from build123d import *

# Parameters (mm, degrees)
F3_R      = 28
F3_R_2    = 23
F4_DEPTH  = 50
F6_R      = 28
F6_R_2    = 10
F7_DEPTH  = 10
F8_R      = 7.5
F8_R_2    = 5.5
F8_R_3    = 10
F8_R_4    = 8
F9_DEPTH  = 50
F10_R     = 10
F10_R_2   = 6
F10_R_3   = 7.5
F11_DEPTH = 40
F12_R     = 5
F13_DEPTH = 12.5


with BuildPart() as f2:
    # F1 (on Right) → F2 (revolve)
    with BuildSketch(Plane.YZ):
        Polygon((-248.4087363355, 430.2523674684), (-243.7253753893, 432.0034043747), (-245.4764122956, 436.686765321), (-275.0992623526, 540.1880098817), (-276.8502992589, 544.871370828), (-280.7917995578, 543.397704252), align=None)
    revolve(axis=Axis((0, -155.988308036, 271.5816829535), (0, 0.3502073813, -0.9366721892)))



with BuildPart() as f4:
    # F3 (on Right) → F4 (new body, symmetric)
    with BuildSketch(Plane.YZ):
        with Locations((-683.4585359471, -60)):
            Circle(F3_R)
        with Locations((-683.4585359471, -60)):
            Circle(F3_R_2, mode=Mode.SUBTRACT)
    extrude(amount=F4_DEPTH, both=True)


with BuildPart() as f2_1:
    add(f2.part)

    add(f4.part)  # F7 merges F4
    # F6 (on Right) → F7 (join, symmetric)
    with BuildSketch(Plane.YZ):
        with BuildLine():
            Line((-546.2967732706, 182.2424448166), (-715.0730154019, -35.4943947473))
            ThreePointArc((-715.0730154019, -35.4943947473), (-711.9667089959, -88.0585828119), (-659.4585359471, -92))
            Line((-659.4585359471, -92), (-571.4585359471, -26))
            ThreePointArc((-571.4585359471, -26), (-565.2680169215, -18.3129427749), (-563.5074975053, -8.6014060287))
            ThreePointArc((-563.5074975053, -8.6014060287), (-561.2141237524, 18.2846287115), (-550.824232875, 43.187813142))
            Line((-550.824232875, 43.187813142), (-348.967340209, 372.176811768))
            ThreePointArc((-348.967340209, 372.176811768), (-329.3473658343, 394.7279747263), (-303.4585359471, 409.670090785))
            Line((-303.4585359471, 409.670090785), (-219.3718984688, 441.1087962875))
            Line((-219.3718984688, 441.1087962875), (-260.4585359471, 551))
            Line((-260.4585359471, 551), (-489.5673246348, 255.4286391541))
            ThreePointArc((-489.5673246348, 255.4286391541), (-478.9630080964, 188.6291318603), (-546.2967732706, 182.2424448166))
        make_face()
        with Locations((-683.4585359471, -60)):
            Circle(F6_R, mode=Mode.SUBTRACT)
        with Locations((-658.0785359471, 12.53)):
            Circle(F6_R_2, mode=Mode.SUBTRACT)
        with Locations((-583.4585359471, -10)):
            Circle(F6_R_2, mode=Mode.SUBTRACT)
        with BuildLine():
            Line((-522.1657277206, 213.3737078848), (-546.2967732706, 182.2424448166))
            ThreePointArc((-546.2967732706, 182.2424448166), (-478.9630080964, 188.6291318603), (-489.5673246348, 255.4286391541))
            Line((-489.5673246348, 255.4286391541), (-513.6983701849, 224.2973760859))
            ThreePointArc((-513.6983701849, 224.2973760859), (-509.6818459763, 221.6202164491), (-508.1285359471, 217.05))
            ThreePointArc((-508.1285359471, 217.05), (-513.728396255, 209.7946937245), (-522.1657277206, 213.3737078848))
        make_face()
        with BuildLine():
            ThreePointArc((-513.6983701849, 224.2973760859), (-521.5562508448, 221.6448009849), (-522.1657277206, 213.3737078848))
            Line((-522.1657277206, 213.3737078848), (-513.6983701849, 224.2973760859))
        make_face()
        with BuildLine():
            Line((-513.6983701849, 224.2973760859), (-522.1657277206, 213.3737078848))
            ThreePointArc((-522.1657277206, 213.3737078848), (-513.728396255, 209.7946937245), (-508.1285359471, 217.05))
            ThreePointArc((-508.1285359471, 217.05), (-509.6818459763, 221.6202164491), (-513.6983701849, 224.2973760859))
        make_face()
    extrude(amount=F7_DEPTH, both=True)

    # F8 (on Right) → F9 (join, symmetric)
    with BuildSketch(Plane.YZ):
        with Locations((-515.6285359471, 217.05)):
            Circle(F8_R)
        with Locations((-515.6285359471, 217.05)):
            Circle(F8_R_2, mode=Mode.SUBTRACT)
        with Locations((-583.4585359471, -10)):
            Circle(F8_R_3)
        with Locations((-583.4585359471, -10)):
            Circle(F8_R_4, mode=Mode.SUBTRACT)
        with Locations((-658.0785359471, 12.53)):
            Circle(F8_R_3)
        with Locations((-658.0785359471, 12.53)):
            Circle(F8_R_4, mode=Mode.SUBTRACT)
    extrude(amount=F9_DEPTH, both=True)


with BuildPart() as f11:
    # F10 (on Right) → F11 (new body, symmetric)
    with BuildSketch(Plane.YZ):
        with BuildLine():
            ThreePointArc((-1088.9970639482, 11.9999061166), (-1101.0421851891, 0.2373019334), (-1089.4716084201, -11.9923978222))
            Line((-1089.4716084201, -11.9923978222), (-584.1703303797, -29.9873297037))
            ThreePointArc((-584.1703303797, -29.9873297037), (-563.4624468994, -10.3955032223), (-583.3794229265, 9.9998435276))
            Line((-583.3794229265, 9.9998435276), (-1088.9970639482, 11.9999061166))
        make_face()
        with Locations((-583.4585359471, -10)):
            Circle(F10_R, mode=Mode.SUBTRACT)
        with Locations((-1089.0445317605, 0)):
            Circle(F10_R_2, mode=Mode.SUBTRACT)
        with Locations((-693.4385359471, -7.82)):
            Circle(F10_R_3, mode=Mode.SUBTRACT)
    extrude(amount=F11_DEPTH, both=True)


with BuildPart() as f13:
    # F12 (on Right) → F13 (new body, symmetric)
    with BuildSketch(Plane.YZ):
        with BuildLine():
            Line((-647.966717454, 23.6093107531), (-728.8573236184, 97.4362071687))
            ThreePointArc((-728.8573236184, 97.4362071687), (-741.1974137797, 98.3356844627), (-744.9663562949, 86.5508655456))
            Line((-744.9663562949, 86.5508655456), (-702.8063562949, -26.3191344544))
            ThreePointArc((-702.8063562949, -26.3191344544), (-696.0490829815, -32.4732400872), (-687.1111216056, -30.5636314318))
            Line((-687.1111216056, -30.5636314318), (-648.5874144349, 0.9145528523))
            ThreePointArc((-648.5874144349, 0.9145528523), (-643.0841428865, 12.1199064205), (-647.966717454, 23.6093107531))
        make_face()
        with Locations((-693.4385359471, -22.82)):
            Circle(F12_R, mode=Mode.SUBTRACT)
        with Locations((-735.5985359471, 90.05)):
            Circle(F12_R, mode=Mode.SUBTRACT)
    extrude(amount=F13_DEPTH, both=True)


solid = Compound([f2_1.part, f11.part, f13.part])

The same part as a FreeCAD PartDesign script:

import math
import FreeCAD as App
import Part
import Sketcher
Q = App.Units.Quantity


def add_polygon(sketch, points):
    """Adds a closed chain of lines whose ends are joined by coincident constraints."""
    first, n = sketch.GeometryCount, len(points)
    for a, b in zip(points, points[1:] + points[:1]):
        sketch.addGeometry(Part.LineSegment(App.Vector(*a, 0), App.Vector(*b, 0)), False)
    for i in range(n):
        sketch.addConstraint(Sketcher.Constraint("Coincident", first + i, 2, first + (i + 1) % n, 1))

doc = App.newDocument("Part")
body = doc.addObject("PartDesign::Body", "Body")

# Sketch on YZ plane
sketch1 = body.newObject("Sketcher::SketchObject", "Sketch")
sketch1.AttachmentSupport = (doc.getObject("YZ_Plane"), [""])
sketch1.MapMode = "FlatFace"
add_polygon(sketch1, [(-248.4, 430.3), (-243.7, 432), (-245.5, 436.7), (-275.1, 540.2), (-276.9, 544.9), (-280.8, 543.4)])  # lines 0-5
sketch1.addGeometry(Part.LineSegment(App.Vector(-260.5, 551, 0), App.Vector(-219.4, 441.1, 0)), True)  # axis
sketch1.addConstraint([
    Sketcher.Constraint("Perpendicular", 0, 1),
    Sketcher.Constraint("Parallel", 1, 3),
    Sketcher.Constraint("Perpendicular", 3, 4),
    Sketcher.Constraint("Parallel", 2, 5),
    Sketcher.Constraint("Perpendicular", 4, 6),
    Sketcher.Constraint("Equal", 0, 1),
    Sketcher.Constraint("Equal", 1, 3),
    Sketcher.Constraint("Distance", 0, Q("5 mm")),
    Sketcher.Constraint("DistanceY", -1, 1, 6, 1, Q("551 mm")),
    Sketcher.Constraint("Angle", 0, Q("20.5 deg")),
    Sketcher.Constraint("DistanceX", 3, 2, -1, 1, Q("276.850299 mm")),
    Sketcher.Constraint("DistanceX", 4, 2, -1, 1, Q("280.7918 mm")),
    Sketcher.Constraint("DistanceX", 6, 2, -1, 1, Q("219.371898 mm")),
    Sketcher.Constraint("DistanceY", 0, 2, 4, 2, Q("111.3943 mm")),
    Sketcher.Constraint("Distance", 6, Q("117.320878 mm")),
    Sketcher.Constraint("DistanceY", -1, 1, 2, 2, Q("540.18801 mm")),
])
revolution = body.newObject("PartDesign::Revolution", "Revolution")
revolution.Profile = sketch1
revolution.ReferenceAxis = (sketch1, ["Axis0"])
revolution.Angle = 360
body2 = doc.addObject("PartDesign::Body", "Body001")

# Sketch on YZ plane
sketch2 = body2.newObject("Sketcher::SketchObject", "Sketch001")
sketch2.AttachmentSupport = (doc.getObject("YZ_Plane001"), [""])
sketch2.MapMode = "FlatFace"
sketch2.addGeometry([
    Part.Circle(App.Vector(-683, -60, 0), App.Vector(0, 0, 1), 28),
    Part.Circle(App.Vector(-683, -60, 0), App.Vector(0, 0, 1), 23),
], False)
sketch2.addConstraint([
    Sketcher.Constraint("Coincident", 1, 3, 0, 3),
    Sketcher.Constraint("Diameter", 0, Q("56 mm")),
    Sketcher.Constraint("Diameter", 1, Q("46 mm")),
    Sketcher.Constraint("DistanceY", 0, 3, -1, 1, Q("60 mm")),
    Sketcher.Constraint("DistanceX", 0, 3, -1, 1, Q("683.458536 mm")),
])
pad1 = body2.newObject("PartDesign::Pad", "Pad")
pad1.Profile = sketch2
pad1.Length = 100
pad1.Midplane = True
body.AllowCompound = True
doc.recompute()

boolean = body.newObject("PartDesign::Boolean", "Boolean")
boolean.Type = "Fuse"
boolean.addObjects([body2])

# Sketch on YZ plane
sketch3 = body.newObject("Sketcher::SketchObject", "Sketch002")
sketch3.AttachmentSupport = (doc.getObject("YZ_Plane"), [""])
sketch3.MapMode = "FlatFace"
sketch3.addGeometry([
    Part.LineSegment(App.Vector(-546.296773, 182.242445, 0), App.Vector(-715.073015, -35.494395, 0)),  # 0
    Part.ArcOfCircle(Part.Circle(App.Vector(-683.458536, -60, 0), App.Vector(0, 0, 1), 40), math.radians(142.219353), math.radians(306.869898)),  # 1
    Part.LineSegment(App.Vector(-659.458536, -92, 0), App.Vector(-571.458536, -26, 0)),  # 2
    Part.ArcOfCircle(Part.Circle(App.Vector(-583.458536, -10, 0), App.Vector(0, 0, 1), 20), math.radians(-53.130102), math.radians(4.009949)),  # 3
    Part.ArcOfCircle(Part.Circle(App.Vector(-476.372803, -2.49315, 0), App.Vector(0, 0, 1), 87.34853), math.radians(148.468083), math.radians(184.009949)),  # 4
    Part.LineSegment(App.Vector(-550.824233, 43.187813, 0), App.Vector(-348.96734, 372.176812, 0)),  # 5
    Part.ArcOfCircle(Part.Circle(App.Vector(-271.719442, 324.780027, 0), App.Vector(0, 0, 1), 90.629427), math.radians(110.5), math.radians(148.468083)),  # 6
    Part.LineSegment(App.Vector(-303.458536, 409.670091, 0), App.Vector(-219.371898, 441.108796, 0)),  # 7
    Part.LineSegment(App.Vector(-219.371898, 441.108796, 0), App.Vector(-260.458536, 551, 0)),  # 8
    Part.LineSegment(App.Vector(-260.458536, 551, 0), App.Vector(-513.69837, 224.297376, 0)),  # 9
    Part.ArcOfCircle(Part.Circle(App.Vector(-515.628536, 217.05, 0), App.Vector(0, 0, 1), 7.5), math.radians(75.086799), math.radians(209.351906)),  # 10
    Part.LineSegment(App.Vector(-522.165728, 213.373708, 0), App.Vector(-546.296773, 182.242445, 0)),  # 11
    Part.Circle(App.Vector(-683.458536, -60, 0), App.Vector(0, 0, 1), 28),  # 12
    Part.Circle(App.Vector(-658.078536, 12.53, 0), App.Vector(0, 0, 1), 10),  # 13
    Part.Circle(App.Vector(-583.458536, -10, 0), App.Vector(0, 0, 1), 10),  # 14
], False)
sketch3.addConstraint([
    Sketcher.Constraint("Coincident", 0, 2, 1, 1),
    Sketcher.Constraint("Coincident", 1, 2, 2, 1),
    Sketcher.Constraint("Coincident", 2, 2, 3, 1),
    Sketcher.Constraint("Coincident", 3, 2, 4, 2),
    Sketcher.Constraint("Coincident", 4, 1, 5, 1),
    Sketcher.Constraint("Coincident", 5, 2, 6, 2),
    Sketcher.Constraint("Coincident", 6, 1, 7, 1),
    Sketcher.Constraint("Coincident", 7, 2, 8, 1),
    Sketcher.Constraint("Coincident", 8, 2, 9, 1),
    Sketcher.Constraint("Coincident", 9, 2, 10, 1),
    Sketcher.Constraint("Coincident", 10, 2, 11, 1),
    Sketcher.Constraint("Coincident", 11, 2, 0, 1),
    Sketcher.Constraint("Coincident", 12, 3, 1, 3),
    Sketcher.Constraint("Coincident", 14, 3, 3, 3),
    Sketcher.Constraint("Diameter", 12, Q("56 mm")),
    Sketcher.Constraint("Diameter", 13, Q("20 mm")),
    Sketcher.Constraint("Diameter", 14, Q("20 mm")),
    Sketcher.Constraint("Radius", 1, Q("40 mm")),
    Sketcher.Constraint("Radius", 3, Q("20 mm")),
    Sketcher.Constraint("Radius", 10, Q("7.5 mm")),
    Sketcher.Constraint("Distance", 2, Q("110 mm")),
    Sketcher.Constraint("DistanceY", 1, 3, -1, 1, Q("60 mm")),
    Sketcher.Constraint("DistanceY", 3, 3, -1, 1, Q("10 mm")),
    Sketcher.Constraint("DistanceY", 1, 2, -1, 1, Q("92 mm")),
    Sketcher.Constraint("DistanceY", 2, 2, -1, 1, Q("26 mm")),
    Sketcher.Constraint("DistanceY", -1, 1, 8, 2, Q("551 mm")),
    Sketcher.Constraint("DistanceX", 6, 1, 8, 2, Q("43 mm")),
    Sketcher.Constraint("DistanceY", -1, 1, 10, 3, Q("217.05 mm")),
    Sketcher.Constraint("DistanceY", -1, 1, 13, 3, Q("12.53 mm")),
    Sketcher.Constraint("Radius", 4, Q("87.34853 mm")),
    Sketcher.Constraint("DistanceX", 3, 3, 10, 3, Q("67.83 mm")),
    Sketcher.Constraint("DistanceX", 1, 3, 13, 3, Q("25.38 mm")),
    Sketcher.Constraint("DistanceX", 10, 3, 6, 1, Q("212.17 mm")),
    Sketcher.Constraint("Radius", 6, Q("90.629427 mm")),
    Sketcher.Constraint("DistanceY", 4, 1, 5, 2, Q("328.988999 mm")),
    Sketcher.Constraint("DistanceX", 7, 2, -1, 1, Q("219.371898 mm")),
    Sketcher.Constraint("DistanceX", 5, 2, 6, 3, Q("77.247899 mm")),
    Sketcher.Constraint("Distance", 0, Q("275.49002 mm")),
    Sketcher.Constraint("Distance", 5, Q("385.97923 mm")),
    Sketcher.Constraint("Distance", 7, Q("89.771682 mm")),
    Sketcher.Constraint("Distance", 8, Q("117.320878 mm")),
    Sketcher.Constraint("Distance", 9, Q("413.35822 mm")),
    Sketcher.Constraint("DistanceY", 4, 3, -1, 1, Q("2.49315 mm")),
    Sketcher.Constraint("DistanceX", 6, 3, -1, 1, Q("271.719442 mm")),
    Sketcher.Constraint("DistanceX", 0, 2, 1, 3, Q("31.614479 mm")),
    Sketcher.Constraint("DistanceX", 2, 2, 3, 2, Q("7.951038 mm")),
    Sketcher.Constraint("DistanceX", 10, 2, 10, 3, Q("6.537192 mm")),
    Sketcher.Constraint("DistanceY", 11, 2, 9, 2, Q("42.054931 mm")),
])
pad2 = body.newObject("PartDesign::Pad", "Pad001")
pad2.Profile = sketch3
pad2.Length = 20
pad2.Midplane = True

# Sketch on YZ plane
sketch4 = body.newObject("Sketcher::SketchObject", "Sketch003")
sketch4.AttachmentSupport = (doc.getObject("YZ_Plane"), [""])
sketch4.MapMode = "FlatFace"
sketch4.addGeometry([
    Part.Circle(App.Vector(-516, 217, 0), App.Vector(0, 0, 1), 8),  # 0
    Part.Circle(App.Vector(-516, 217, 0), App.Vector(0, 0, 1), 6),  # 1
    Part.Circle(App.Vector(-583, -10, 0), App.Vector(0, 0, 1), 10),  # 2
    Part.Circle(App.Vector(-583, -10, 0), App.Vector(0, 0, 1), 8),  # 3
    Part.Circle(App.Vector(-658, 13, 0), App.Vector(0, 0, 1), 10),  # 4
    Part.Circle(App.Vector(-658, 13, 0), App.Vector(0, 0, 1), 8),  # 5
], False)
sketch4.addConstraint([
    Sketcher.Constraint("Coincident", 1, 3, 0, 3),
    Sketcher.Constraint("Coincident", 3, 3, 2, 3),
    Sketcher.Constraint("Coincident", 5, 3, 4, 3),
    Sketcher.Constraint("Equal", 2, 4),
    Sketcher.Constraint("Equal", 3, 5),
    Sketcher.Constraint("Diameter", 0, Q("15 mm")),
    Sketcher.Constraint("Diameter", 1, Q("11 mm")),
    Sketcher.Constraint("Diameter", 2, Q("20 mm")),
    Sketcher.Constraint("Diameter", 3, Q("16 mm")),
    Sketcher.Constraint("DistanceY", 2, 3, -1, 1, Q("10 mm")),
    Sketcher.Constraint("DistanceY", -1, 1, 0, 3, Q("217.05 mm")),
    Sketcher.Constraint("DistanceY", -1, 1, 4, 3, Q("12.53 mm")),
    Sketcher.Constraint("DistanceX", 2, 3, 0, 3, Q("67.83 mm")),
    Sketcher.Constraint("DistanceX", 4, 3, 2, 3, Q("74.62 mm")),
    Sketcher.Constraint("DistanceX", 0, 3, -1, 1, Q("515.628536 mm")),
])
pad3 = body.newObject("PartDesign::Pad", "Pad002")
pad3.Profile = sketch4
pad3.Length = 100
pad3.Midplane = True
body3 = doc.addObject("PartDesign::Body", "Body002")

# Sketch on YZ plane
sketch5 = body3.newObject("Sketcher::SketchObject", "Sketch004")
sketch5.AttachmentSupport = (doc.getObject("YZ_Plane002"), [""])
sketch5.MapMode = "FlatFace"
sketch5.addGeometry([
    Part.ArcOfCircle(Part.Circle(App.Vector(-1089, 0, 0), App.Vector(0, 0, 1), 12), math.radians(90), math.radians(268)),  # 0
    Part.LineSegment(App.Vector(-1089, -12, 0), App.Vector(-584, -30, 0)),  # 1
    Part.ArcOfCircle(Part.Circle(App.Vector(-583, -10, 0), App.Vector(0, 0, 1), 20), math.radians(-92), math.radians(90)),  # 2
    Part.LineSegment(App.Vector(-583, 10, 0), App.Vector(-1089, 12, 0)),  # 3
    Part.Circle(App.Vector(-693, -8, 0), App.Vector(0, 0, 1), 8),  # 4
    Part.Circle(App.Vector(-583, -10, 0), App.Vector(0, 0, 1), 10),  # 5
    Part.Circle(App.Vector(-1089, 0, 0), App.Vector(0, 0, 1), 6),  # 6
], False)
sketch5.addConstraint([
    Sketcher.Constraint("Tangent", 0, 2, 1, 1),
    Sketcher.Constraint("Tangent", 1, 2, 2, 1),
    Sketcher.Constraint("Tangent", 2, 2, 3, 1),
    Sketcher.Constraint("Tangent", 3, 2, 0, 1),
    Sketcher.Constraint("Coincident", 5, 3, 2, 3),
    Sketcher.Constraint("Coincident", 6, 3, 0, 3),
    Sketcher.Constraint("PointOnObject", 0, 3, -1),
    Sketcher.Constraint("Diameter", 4, Q("15 mm")),
    Sketcher.Constraint("Diameter", 5, Q("20 mm")),
    Sketcher.Constraint("Diameter", 6, Q("12 mm")),
    Sketcher.Constraint("Radius", 0, Q("12 mm")),
    Sketcher.Constraint("Radius", 2, Q("20 mm")),
    Sketcher.Constraint("DistanceY", 2, 3, -1, 1, Q("10 mm")),
    Sketcher.Constraint("DistanceY", 4, 3, -1, 1, Q("7.82 mm")),
    Sketcher.Constraint("DistanceX", 4, 3, 2, 3, Q("109.98 mm")),
    Sketcher.Constraint("DistanceX", 6, 3, 1, 2, Q("504.874201 mm")),
    Sketcher.Constraint("DistanceX", 0, 3, -1, 1, Q("1089.044532 mm")),
])
pad4 = body3.newObject("PartDesign::Pad", "Pad003")
pad4.Profile = sketch5
pad4.Length = 80
pad4.Midplane = True
body4 = doc.addObject("PartDesign::Body", "Body003")

# Sketch on YZ plane
sketch6 = body4.newObject("Sketcher::SketchObject", "Sketch005")
sketch6.AttachmentSupport = (doc.getObject("YZ_Plane003"), [""])
sketch6.MapMode = "FlatFace"
sketch6.addGeometry([
    Part.LineSegment(App.Vector(-648, 24, 0), App.Vector(-729, 97, 0)),  # 0
    Part.ArcOfCircle(Part.Circle(App.Vector(-736, 90, 0), App.Vector(0, 0, 1), 10), math.radians(48), math.radians(200)),  # 1
    Part.LineSegment(App.Vector(-745, 87, 0), App.Vector(-703, -26, 0)),  # 2
    Part.ArcOfCircle(Part.Circle(App.Vector(-693, -23, 0), App.Vector(0, 0, 1), 10), math.radians(-160), math.radians(-51)),  # 3
    Part.LineSegment(App.Vector(-687, -31, 0), App.Vector(-649, 1, 0)),  # 4
    Part.ArcOfCircle(Part.Circle(App.Vector(-658, 13, 0), App.Vector(0, 0, 1), 15), math.radians(-51), math.radians(48)),  # 5
    Part.Circle(App.Vector(-693, -23, 0), App.Vector(0, 0, 1), 5),  # 6
    Part.Circle(App.Vector(-736, 90, 0), App.Vector(0, 0, 1), 5),  # 7
], False)
sketch6.addConstraint([
    Sketcher.Constraint("Tangent", 0, 2, 1, 1),
    Sketcher.Constraint("Tangent", 1, 2, 2, 1),
    Sketcher.Constraint("Tangent", 2, 2, 3, 1),
    Sketcher.Constraint("Tangent", 3, 2, 4, 1),
    Sketcher.Constraint("Tangent", 4, 2, 5, 1),
    Sketcher.Constraint("Tangent", 5, 2, 0, 1),
    Sketcher.Constraint("Coincident", 6, 3, 3, 3),
    Sketcher.Constraint("Coincident", 7, 3, 1, 3),
    Sketcher.Constraint("Equal", 1, 3),
    Sketcher.Constraint("Equal", 6, 7),
    Sketcher.Constraint("Diameter", 6, Q("10 mm")),
    Sketcher.Constraint("Radius", 1, Q("10 mm")),
    Sketcher.Constraint("Radius", 5, Q("15 mm")),
    Sketcher.Constraint("DistanceY", -1, 1, 1, 3, Q("90.05 mm")),
    Sketcher.Constraint("DistanceY", 3, 3, -1, 1, Q("22.82 mm")),
    Sketcher.Constraint("DistanceY", -1, 1, 5, 3, Q("12.53 mm")),
    Sketcher.Constraint("DistanceX", 1, 3, 3, 3, Q("42.16 mm")),
    Sketcher.Constraint("DistanceX", 3, 3, 5, 3, Q("35.36 mm")),
    Sketcher.Constraint("DistanceX", 3, 2, -1, 1, Q("687.111122 mm")),
])
pad5 = body4.newObject("PartDesign::Pad", "Pad004")
pad5.Profile = sketch6
pad5.Length = 25
pad5.Midplane = True

doc.recompute()
